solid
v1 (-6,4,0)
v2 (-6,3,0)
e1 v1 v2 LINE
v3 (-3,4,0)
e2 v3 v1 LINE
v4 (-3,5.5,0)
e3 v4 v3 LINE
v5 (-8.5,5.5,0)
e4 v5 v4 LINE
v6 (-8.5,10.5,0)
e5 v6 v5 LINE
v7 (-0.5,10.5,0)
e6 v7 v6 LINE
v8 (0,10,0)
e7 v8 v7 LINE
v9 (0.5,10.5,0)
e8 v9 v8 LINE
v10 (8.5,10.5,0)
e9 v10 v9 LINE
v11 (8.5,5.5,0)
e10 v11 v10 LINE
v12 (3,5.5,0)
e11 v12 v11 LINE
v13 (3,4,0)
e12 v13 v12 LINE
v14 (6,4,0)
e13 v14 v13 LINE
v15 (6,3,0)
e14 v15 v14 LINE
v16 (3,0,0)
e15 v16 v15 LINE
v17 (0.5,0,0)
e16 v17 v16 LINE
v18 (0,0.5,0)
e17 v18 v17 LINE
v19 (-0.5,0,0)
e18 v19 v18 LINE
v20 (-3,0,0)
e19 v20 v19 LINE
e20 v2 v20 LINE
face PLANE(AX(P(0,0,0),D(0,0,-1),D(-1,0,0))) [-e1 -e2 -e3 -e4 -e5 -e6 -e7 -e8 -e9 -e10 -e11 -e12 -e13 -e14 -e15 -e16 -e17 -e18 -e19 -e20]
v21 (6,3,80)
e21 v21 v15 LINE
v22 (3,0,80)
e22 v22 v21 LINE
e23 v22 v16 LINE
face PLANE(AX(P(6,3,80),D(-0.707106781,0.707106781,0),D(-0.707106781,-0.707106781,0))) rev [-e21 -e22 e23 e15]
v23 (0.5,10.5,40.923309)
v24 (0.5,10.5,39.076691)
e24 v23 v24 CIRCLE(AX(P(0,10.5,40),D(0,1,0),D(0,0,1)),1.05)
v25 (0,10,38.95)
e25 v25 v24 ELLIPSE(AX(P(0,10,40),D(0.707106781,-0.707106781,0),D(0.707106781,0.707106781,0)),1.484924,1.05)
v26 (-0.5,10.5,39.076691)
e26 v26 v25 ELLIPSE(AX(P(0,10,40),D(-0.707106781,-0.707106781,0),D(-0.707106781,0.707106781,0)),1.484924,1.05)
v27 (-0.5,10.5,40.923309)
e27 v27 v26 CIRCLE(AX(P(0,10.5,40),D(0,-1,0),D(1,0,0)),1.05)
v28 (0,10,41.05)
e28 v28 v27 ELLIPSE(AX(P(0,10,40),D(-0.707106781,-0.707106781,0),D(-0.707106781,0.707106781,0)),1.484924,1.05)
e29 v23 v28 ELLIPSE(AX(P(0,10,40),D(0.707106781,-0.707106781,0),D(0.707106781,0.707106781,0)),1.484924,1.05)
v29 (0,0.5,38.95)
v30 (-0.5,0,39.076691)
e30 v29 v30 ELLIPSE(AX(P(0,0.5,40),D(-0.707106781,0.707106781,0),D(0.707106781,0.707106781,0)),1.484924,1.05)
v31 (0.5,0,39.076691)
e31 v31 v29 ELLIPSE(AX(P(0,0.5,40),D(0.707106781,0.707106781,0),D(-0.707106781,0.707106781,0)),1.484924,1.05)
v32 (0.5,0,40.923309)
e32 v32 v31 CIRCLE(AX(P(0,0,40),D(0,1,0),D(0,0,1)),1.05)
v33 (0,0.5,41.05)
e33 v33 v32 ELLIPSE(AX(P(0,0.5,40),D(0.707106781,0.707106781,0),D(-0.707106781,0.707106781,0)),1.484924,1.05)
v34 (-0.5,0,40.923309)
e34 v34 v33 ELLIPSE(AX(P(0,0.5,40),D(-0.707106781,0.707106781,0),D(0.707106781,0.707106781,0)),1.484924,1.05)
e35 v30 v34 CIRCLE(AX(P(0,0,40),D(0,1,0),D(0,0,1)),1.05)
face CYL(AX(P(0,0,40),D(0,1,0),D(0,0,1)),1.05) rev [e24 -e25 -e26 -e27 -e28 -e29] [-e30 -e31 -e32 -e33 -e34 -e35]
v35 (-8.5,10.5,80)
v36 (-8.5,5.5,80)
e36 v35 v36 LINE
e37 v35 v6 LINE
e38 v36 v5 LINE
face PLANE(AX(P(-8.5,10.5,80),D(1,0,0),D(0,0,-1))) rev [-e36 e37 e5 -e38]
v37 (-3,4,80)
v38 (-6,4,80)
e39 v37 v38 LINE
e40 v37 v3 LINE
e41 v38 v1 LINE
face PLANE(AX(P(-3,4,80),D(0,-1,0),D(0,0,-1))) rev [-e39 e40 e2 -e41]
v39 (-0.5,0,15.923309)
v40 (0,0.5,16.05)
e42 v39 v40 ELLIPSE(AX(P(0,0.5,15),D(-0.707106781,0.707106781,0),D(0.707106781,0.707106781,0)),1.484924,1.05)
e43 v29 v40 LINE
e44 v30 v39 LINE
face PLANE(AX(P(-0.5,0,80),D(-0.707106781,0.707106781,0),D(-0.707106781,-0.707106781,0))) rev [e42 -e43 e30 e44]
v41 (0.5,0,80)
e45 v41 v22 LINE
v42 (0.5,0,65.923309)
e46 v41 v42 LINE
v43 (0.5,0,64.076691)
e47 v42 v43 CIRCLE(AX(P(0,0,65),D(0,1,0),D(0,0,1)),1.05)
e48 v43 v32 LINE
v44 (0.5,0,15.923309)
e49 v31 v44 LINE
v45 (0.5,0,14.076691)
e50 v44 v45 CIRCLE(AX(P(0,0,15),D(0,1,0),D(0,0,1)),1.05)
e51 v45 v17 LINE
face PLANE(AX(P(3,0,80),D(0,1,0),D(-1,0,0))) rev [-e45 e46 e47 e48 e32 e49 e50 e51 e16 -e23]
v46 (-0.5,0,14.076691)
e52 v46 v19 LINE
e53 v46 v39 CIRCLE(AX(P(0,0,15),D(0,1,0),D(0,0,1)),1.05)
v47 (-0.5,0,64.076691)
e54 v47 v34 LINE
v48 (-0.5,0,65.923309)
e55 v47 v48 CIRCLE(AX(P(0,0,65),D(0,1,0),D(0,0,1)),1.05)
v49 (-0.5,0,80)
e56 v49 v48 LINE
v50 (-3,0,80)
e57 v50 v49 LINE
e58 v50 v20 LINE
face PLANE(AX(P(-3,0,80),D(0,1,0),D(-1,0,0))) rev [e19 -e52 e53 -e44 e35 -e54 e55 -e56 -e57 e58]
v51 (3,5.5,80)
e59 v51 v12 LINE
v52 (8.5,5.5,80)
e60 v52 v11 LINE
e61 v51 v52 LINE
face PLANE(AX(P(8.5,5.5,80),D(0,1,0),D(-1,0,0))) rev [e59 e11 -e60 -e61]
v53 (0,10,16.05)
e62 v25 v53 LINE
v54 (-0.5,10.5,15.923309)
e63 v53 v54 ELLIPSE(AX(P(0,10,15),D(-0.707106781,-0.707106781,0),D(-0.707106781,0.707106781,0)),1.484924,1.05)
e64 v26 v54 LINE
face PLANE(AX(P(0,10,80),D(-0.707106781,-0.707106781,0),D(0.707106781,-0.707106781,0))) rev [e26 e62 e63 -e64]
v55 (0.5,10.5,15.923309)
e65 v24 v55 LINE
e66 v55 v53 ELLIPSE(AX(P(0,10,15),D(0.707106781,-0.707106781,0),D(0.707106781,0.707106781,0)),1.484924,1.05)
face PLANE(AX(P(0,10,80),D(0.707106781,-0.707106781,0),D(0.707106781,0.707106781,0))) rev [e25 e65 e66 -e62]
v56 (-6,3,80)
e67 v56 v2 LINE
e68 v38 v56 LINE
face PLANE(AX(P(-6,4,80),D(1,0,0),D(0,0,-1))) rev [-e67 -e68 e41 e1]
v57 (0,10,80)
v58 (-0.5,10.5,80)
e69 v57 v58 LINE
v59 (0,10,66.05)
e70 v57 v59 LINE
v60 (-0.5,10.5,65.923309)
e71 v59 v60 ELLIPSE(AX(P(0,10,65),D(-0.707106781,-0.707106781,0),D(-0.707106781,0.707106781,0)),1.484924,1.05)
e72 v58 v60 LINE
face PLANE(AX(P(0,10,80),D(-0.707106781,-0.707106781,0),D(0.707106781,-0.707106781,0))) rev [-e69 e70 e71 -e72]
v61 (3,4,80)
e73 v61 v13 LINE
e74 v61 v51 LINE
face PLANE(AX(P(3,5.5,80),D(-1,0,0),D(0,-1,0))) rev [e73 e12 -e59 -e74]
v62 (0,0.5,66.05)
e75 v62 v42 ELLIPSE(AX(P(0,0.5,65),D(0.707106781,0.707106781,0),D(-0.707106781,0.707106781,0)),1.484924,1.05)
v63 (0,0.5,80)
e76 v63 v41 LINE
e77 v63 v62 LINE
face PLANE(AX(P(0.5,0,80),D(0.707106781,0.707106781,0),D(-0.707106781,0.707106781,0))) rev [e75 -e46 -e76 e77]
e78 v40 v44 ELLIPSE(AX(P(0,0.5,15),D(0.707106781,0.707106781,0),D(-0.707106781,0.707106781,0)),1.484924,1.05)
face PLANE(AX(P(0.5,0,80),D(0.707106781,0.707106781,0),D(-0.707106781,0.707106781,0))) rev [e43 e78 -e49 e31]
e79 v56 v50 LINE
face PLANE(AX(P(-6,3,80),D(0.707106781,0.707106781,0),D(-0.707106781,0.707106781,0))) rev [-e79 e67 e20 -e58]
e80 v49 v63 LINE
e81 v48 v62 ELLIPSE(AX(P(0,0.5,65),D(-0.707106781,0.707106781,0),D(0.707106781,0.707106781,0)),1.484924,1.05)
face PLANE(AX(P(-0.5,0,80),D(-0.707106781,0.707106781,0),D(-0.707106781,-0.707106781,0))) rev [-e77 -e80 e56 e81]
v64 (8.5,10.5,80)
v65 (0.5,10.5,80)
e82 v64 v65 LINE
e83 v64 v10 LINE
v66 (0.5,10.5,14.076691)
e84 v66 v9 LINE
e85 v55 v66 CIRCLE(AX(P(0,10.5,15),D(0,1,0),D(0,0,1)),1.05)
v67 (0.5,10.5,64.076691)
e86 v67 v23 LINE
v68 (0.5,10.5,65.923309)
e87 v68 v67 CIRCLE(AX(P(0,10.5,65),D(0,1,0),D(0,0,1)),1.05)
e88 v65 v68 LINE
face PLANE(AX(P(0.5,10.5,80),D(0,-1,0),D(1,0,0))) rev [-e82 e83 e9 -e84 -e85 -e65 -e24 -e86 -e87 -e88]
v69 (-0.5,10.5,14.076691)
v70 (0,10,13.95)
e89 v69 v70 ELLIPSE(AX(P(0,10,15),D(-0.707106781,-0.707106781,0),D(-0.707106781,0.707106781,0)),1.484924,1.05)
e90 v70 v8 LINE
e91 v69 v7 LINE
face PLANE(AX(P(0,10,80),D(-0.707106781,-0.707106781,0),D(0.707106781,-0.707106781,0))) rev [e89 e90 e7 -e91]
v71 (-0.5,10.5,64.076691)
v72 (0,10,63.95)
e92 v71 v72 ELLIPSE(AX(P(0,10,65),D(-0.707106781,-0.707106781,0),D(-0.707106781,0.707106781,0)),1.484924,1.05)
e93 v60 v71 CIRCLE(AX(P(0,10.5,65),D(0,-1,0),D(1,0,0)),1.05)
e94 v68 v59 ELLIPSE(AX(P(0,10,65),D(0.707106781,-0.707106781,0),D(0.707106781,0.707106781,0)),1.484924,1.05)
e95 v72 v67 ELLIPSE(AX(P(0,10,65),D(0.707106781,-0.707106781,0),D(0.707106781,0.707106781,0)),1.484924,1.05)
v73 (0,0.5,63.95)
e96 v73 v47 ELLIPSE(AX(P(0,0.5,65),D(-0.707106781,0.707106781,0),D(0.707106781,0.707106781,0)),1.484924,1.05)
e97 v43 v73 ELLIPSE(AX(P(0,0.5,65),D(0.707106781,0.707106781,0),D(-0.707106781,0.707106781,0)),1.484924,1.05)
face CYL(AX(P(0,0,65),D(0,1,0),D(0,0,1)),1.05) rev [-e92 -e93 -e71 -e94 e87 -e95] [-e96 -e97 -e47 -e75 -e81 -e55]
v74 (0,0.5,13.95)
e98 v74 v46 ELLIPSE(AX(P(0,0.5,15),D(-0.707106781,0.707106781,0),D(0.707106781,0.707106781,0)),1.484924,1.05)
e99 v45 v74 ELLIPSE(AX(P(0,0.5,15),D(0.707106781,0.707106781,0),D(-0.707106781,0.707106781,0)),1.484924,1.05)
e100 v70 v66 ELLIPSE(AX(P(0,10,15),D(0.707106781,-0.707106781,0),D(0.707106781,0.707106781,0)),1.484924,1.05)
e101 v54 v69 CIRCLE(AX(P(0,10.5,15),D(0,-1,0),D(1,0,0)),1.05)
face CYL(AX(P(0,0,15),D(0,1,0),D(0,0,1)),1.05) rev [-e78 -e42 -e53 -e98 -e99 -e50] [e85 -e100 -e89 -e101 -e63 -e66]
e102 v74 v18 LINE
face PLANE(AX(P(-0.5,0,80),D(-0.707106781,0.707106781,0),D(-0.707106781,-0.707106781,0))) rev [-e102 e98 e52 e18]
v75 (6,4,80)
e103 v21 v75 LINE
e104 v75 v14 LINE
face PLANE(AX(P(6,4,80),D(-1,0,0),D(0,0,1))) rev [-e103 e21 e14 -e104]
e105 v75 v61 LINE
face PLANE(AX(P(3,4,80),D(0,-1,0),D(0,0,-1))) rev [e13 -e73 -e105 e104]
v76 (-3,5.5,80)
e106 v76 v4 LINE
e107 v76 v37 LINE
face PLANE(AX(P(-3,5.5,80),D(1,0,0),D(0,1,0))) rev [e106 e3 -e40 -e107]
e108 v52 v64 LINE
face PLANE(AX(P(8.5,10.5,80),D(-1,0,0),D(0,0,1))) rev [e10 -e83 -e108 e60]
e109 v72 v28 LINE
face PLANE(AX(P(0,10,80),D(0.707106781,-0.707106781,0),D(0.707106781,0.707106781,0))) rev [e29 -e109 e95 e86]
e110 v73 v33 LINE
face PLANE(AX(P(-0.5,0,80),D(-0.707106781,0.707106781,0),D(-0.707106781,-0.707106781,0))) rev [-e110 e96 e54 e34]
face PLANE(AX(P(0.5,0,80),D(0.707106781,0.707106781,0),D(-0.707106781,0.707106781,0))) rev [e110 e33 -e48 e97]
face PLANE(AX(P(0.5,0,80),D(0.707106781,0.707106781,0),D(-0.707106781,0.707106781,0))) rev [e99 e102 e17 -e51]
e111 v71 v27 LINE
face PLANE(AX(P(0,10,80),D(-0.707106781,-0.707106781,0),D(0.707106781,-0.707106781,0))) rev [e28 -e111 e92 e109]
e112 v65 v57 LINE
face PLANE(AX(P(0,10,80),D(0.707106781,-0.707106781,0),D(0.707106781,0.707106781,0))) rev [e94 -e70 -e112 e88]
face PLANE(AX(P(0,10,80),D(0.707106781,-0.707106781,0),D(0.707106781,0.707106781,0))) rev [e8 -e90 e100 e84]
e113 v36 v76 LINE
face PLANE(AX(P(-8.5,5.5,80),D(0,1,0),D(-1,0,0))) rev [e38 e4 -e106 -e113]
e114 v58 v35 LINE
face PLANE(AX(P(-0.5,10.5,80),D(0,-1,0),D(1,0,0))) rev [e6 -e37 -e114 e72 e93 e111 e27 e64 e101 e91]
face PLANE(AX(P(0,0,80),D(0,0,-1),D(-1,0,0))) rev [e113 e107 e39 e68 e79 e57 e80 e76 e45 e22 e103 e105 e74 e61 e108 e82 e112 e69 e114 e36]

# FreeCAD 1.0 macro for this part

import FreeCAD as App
import Part
import Sketcher

doc = App.newDocument("Part")
params = doc.addObject("Spreadsheet::Sheet", "Params")
for row, (alias, value) in enumerate([
    ("sketch1_width", "8 mm"),
    ("sketch1_width2", "3 mm"),
    ("sketch1_height", "5 mm"),
    ("sketch1_height2", "1 mm"),
    ("sketch1_width3", "5.5 mm"),
    ("pad1_length", "80 mm"),
    ("sketch2_diameter", "2.1 mm"),
], start=1):
    params.set(f"A{row}", alias)
    params.set(f"B{row}", "=" + value)
    params.setAlias(f"B{row}", alias)

body = doc.addObject("PartDesign::Body", "Body")

# Sketch on XY plane
sketch1 = body.newObject("Sketcher::SketchObject", "Sketch")
sketch1.AttachmentSupport = (doc.getObject("XY_Plane"), [""])
sketch1.MapMode = "FlatFace"
sketch1.addGeometry([
    Part.LineSegment(App.Vector(0.5, 10.5, 0), App.Vector(0, 10, 0)),  # 0
    Part.LineSegment(App.Vector(0, 10, 0), App.Vector(-0.5, 10.5, 0)),  # 1
    Part.LineSegment(App.Vector(-0.5, 10.5, 0), App.Vector(-8.5, 10.5, 0)),  # 2
    Part.LineSegment(App.Vector(-8.5, 10.5, 0), App.Vector(-8.5, 5.5, 0)),  # 3
    Part.LineSegment(App.Vector(-8.5, 5.5, 0), App.Vector(-3, 5.5, 0)),  # 4
    Part.LineSegment(App.Vector(-3, 5.5, 0), App.Vector(-3, 4, 0)),  # 5
    Part.LineSegment(App.Vector(-3, 4, 0), App.Vector(-6, 4, 0)),  # 6
    Part.LineSegment(App.Vector(-6, 4, 0), App.Vector(-6, 3, 0)),  # 7
    Part.LineSegment(App.Vector(-6, 3, 0), App.Vector(-3, 0, 0)),  # 8
    Part.LineSegment(App.Vector(-3, 0, 0), App.Vector(-0.5, 0, 0)),  # 9
    Part.LineSegment(App.Vector(-0.5, 0, 0), App.Vector(0, 0.5, 0)),  # 10
    Part.LineSegment(App.Vector(0, 0.5, 0), App.Vector(0.5, 0, 0)),  # 11
    Part.LineSegment(App.Vector(0.5, 0, 0), App.Vector(3, 0, 0)),  # 12
    Part.LineSegment(App.Vector(3, 0, 0), App.Vector(6, 3, 0)),  # 13
    Part.LineSegment(App.Vector(6, 3, 0), App.Vector(6, 4, 0)),  # 14
    Part.LineSegment(App.Vector(6, 4, 0), App.Vector(3, 4, 0)),  # 15
    Part.LineSegment(App.Vector(3, 4, 0), App.Vector(3, 5.5, 0)),  # 16
    Part.LineSegment(App.Vector(3, 5.5, 0), App.Vector(8.5, 5.5, 0)),  # 17
    Part.LineSegment(App.Vector(8.5, 5.5, 0), App.Vector(8.5, 10.5, 0)),  # 18
    Part.LineSegment(App.Vector(8.5, 10.5, 0), App.Vector(0.5, 10.5, 0)),  # 19
], False)
sketch1.addConstraint([
    Sketcher.Constraint("Coincident", 0, 2, 1, 1),
    Sketcher.Constraint("Coincident", 1, 2, 2, 1),
    Sketcher.Constraint("Coincident", 2, 2, 3, 1),
    Sketcher.Constraint("Coincident", 3, 2, 4, 1),
    Sketcher.Constraint("Coincident", 4, 2, 5, 1),
    Sketcher.Constraint("Coincident", 5, 2, 6, 1),
    Sketcher.Constraint("Coincident", 6, 2, 7, 1),
    Sketcher.Constraint("Coincident", 7, 2, 8, 1),
    Sketcher.Constraint("Coincident", 8, 2, 9, 1),
    Sketcher.Constraint("Coincident", 9, 2, 10, 1),
    Sketcher.Constraint("Coincident", 10, 2, 11, 1),
    Sketcher.Constraint("Coincident", 11, 2, 12, 1),
    Sketcher.Constraint("Coincident", 12, 2, 13, 1),
    Sketcher.Constraint("Coincident", 13, 2, 14, 1),
    Sketcher.Constraint("Coincident", 14, 2, 15, 1),
    Sketcher.Constraint("Coincident", 15, 2, 16, 1),
    Sketcher.Constraint("Coincident", 16, 2, 17, 1),
    Sketcher.Constraint("Coincident", 17, 2, 18, 1),
    Sketcher.Constraint("Coincident", 18, 2, 19, 1),
    Sketcher.Constraint("Coincident", 19, 2, 0, 1),
    Sketcher.Constraint("Horizontal", 2),
    Sketcher.Constraint("Vertical", 3),
    Sketcher.Constraint("Horizontal", 4),
    Sketcher.Constraint("Vertical", 5),
    Sketcher.Constraint("Horizontal", 6),
    Sketcher.Constraint("Vertical", 7),
    Sketcher.Constraint("Horizontal", 9),
    Sketcher.Constraint("Horizontal", 12),
    Sketcher.Constraint("Vertical", 14),
    Sketcher.Constraint("Horizontal", 15),
    Sketcher.Constraint("Vertical", 16),
    Sketcher.Constraint("Horizontal", 17),
    Sketcher.Constraint("Vertical", 18),
    Sketcher.Constraint("Horizontal", 19),
    Sketcher.Constraint("Symmetric", 9, 2, 11, 2, -1, 1),
    Sketcher.Constraint("Symmetric", 8, 2, 12, 2, -2),
    Sketcher.Constraint("Symmetric", 7, 2, 13, 2, -2),
    Sketcher.Constraint("Symmetric", 5, 2, 15, 2, -2),
    Sketcher.Constraint("Symmetric", 3, 2, 17, 2, -2),
    Sketcher.Constraint("Symmetric", 1, 2, 19, 2, -2),
    Sketcher.Constraint("PointOnObject", 0, 2, -2),
    Sketcher.Constraint("PointOnObject", 10, 2, -2),
    Sketcher.Constraint("Perpendicular", 0, 1),
    Sketcher.Constraint("Parallel", 1, 8),
    Sketcher.Constraint("Perpendicular", 8, 10),
    Sketcher.Constraint("Vertical", 5, 2, 8, 2),
    Sketcher.Constraint("Vertical", 1, 2, 9, 2),
    Sketcher.Constraint("DistanceX", 2, 2, 2, 1, 8.0),
    Sketcher.Constraint("DistanceX", 6, 2, 6, 1, 3.0),
    Sketcher.Constraint("DistanceY", 3, 2, 3, 1, 5.0),
    Sketcher.Constraint("DistanceY", 7, 2, 7, 1, 1.0),
    Sketcher.Constraint("DistanceX", 4, 1, 4, 2, 5.5),
    Sketcher.Constraint("DistanceY", 5, 2, 5, 1, 1.5),
    Sketcher.Constraint("DistanceY", -1, 1, 0, 2, 10.0),
])
sketch1.setExpression("Constraints[47]", "Params.sketch1_width")
sketch1.setExpression("Constraints[48]", "Params.sketch1_width2")
sketch1.setExpression("Constraints[49]", "Params.sketch1_height")
sketch1.setExpression("Constraints[50]", "Params.sketch1_height2")
sketch1.setExpression("Constraints[51]", "Params.sketch1_width3")
pad1 = body.newObject("PartDesign::Pad", "Pad")
pad1.Profile = sketch1
pad1.setExpression("Length", "Params.pad1_length")

# Sketch on XZ plane
sketch2 = body.newObject("Sketcher::SketchObject", "Sketch001")
sketch2.AttachmentSupport = (doc.getObject("XZ_Plane"), [""])
sketch2.MapMode = "FlatFace"
sketch2.AttachmentOffset = App.Placement(App.Vector(0, 0, -10.5), App.Rotation())
sketch2.addGeometry([
    Part.Circle(App.Vector(0, 65, 0), App.Vector(0, 0, 1), 1.05),
    Part.Circle(App.Vector(0, 40, 0), App.Vector(0, 0, 1), 1.05),
    Part.Circle(App.Vector(0, 15, 0), App.Vector(0, 0, 1), 1.05),
], False)
sketch2.addConstraint([
    Sketcher.Constraint("Equal", 0, 1),
    Sketcher.Constraint("Equal", 1, 2),
    Sketcher.Constraint("PointOnObject", 0, 3, -2),
    Sketcher.Constraint("PointOnObject", 1, 3, -2),
    Sketcher.Constraint("PointOnObject", 2, 3, -2),
    Sketcher.Constraint("Diameter", 0, 2.1),
    Sketcher.Constraint("DistanceY", -1, 1, 0, 3, 65.0),
    Sketcher.Constraint("DistanceY", -1, 1, 1, 3, 40.0),
    Sketcher.Constraint("DistanceY", -1, 1, 2, 3, 15.0),
])
sketch2.setExpression("Constraints[5]", "Params.sketch2_diameter")
pocket1 = body.newObject("PartDesign::Pocket", "Pocket")
pocket1.Profile = sketch2
pocket1.Type = "ThroughAll"
pocket1.Reversed = True

doc.recompute()
